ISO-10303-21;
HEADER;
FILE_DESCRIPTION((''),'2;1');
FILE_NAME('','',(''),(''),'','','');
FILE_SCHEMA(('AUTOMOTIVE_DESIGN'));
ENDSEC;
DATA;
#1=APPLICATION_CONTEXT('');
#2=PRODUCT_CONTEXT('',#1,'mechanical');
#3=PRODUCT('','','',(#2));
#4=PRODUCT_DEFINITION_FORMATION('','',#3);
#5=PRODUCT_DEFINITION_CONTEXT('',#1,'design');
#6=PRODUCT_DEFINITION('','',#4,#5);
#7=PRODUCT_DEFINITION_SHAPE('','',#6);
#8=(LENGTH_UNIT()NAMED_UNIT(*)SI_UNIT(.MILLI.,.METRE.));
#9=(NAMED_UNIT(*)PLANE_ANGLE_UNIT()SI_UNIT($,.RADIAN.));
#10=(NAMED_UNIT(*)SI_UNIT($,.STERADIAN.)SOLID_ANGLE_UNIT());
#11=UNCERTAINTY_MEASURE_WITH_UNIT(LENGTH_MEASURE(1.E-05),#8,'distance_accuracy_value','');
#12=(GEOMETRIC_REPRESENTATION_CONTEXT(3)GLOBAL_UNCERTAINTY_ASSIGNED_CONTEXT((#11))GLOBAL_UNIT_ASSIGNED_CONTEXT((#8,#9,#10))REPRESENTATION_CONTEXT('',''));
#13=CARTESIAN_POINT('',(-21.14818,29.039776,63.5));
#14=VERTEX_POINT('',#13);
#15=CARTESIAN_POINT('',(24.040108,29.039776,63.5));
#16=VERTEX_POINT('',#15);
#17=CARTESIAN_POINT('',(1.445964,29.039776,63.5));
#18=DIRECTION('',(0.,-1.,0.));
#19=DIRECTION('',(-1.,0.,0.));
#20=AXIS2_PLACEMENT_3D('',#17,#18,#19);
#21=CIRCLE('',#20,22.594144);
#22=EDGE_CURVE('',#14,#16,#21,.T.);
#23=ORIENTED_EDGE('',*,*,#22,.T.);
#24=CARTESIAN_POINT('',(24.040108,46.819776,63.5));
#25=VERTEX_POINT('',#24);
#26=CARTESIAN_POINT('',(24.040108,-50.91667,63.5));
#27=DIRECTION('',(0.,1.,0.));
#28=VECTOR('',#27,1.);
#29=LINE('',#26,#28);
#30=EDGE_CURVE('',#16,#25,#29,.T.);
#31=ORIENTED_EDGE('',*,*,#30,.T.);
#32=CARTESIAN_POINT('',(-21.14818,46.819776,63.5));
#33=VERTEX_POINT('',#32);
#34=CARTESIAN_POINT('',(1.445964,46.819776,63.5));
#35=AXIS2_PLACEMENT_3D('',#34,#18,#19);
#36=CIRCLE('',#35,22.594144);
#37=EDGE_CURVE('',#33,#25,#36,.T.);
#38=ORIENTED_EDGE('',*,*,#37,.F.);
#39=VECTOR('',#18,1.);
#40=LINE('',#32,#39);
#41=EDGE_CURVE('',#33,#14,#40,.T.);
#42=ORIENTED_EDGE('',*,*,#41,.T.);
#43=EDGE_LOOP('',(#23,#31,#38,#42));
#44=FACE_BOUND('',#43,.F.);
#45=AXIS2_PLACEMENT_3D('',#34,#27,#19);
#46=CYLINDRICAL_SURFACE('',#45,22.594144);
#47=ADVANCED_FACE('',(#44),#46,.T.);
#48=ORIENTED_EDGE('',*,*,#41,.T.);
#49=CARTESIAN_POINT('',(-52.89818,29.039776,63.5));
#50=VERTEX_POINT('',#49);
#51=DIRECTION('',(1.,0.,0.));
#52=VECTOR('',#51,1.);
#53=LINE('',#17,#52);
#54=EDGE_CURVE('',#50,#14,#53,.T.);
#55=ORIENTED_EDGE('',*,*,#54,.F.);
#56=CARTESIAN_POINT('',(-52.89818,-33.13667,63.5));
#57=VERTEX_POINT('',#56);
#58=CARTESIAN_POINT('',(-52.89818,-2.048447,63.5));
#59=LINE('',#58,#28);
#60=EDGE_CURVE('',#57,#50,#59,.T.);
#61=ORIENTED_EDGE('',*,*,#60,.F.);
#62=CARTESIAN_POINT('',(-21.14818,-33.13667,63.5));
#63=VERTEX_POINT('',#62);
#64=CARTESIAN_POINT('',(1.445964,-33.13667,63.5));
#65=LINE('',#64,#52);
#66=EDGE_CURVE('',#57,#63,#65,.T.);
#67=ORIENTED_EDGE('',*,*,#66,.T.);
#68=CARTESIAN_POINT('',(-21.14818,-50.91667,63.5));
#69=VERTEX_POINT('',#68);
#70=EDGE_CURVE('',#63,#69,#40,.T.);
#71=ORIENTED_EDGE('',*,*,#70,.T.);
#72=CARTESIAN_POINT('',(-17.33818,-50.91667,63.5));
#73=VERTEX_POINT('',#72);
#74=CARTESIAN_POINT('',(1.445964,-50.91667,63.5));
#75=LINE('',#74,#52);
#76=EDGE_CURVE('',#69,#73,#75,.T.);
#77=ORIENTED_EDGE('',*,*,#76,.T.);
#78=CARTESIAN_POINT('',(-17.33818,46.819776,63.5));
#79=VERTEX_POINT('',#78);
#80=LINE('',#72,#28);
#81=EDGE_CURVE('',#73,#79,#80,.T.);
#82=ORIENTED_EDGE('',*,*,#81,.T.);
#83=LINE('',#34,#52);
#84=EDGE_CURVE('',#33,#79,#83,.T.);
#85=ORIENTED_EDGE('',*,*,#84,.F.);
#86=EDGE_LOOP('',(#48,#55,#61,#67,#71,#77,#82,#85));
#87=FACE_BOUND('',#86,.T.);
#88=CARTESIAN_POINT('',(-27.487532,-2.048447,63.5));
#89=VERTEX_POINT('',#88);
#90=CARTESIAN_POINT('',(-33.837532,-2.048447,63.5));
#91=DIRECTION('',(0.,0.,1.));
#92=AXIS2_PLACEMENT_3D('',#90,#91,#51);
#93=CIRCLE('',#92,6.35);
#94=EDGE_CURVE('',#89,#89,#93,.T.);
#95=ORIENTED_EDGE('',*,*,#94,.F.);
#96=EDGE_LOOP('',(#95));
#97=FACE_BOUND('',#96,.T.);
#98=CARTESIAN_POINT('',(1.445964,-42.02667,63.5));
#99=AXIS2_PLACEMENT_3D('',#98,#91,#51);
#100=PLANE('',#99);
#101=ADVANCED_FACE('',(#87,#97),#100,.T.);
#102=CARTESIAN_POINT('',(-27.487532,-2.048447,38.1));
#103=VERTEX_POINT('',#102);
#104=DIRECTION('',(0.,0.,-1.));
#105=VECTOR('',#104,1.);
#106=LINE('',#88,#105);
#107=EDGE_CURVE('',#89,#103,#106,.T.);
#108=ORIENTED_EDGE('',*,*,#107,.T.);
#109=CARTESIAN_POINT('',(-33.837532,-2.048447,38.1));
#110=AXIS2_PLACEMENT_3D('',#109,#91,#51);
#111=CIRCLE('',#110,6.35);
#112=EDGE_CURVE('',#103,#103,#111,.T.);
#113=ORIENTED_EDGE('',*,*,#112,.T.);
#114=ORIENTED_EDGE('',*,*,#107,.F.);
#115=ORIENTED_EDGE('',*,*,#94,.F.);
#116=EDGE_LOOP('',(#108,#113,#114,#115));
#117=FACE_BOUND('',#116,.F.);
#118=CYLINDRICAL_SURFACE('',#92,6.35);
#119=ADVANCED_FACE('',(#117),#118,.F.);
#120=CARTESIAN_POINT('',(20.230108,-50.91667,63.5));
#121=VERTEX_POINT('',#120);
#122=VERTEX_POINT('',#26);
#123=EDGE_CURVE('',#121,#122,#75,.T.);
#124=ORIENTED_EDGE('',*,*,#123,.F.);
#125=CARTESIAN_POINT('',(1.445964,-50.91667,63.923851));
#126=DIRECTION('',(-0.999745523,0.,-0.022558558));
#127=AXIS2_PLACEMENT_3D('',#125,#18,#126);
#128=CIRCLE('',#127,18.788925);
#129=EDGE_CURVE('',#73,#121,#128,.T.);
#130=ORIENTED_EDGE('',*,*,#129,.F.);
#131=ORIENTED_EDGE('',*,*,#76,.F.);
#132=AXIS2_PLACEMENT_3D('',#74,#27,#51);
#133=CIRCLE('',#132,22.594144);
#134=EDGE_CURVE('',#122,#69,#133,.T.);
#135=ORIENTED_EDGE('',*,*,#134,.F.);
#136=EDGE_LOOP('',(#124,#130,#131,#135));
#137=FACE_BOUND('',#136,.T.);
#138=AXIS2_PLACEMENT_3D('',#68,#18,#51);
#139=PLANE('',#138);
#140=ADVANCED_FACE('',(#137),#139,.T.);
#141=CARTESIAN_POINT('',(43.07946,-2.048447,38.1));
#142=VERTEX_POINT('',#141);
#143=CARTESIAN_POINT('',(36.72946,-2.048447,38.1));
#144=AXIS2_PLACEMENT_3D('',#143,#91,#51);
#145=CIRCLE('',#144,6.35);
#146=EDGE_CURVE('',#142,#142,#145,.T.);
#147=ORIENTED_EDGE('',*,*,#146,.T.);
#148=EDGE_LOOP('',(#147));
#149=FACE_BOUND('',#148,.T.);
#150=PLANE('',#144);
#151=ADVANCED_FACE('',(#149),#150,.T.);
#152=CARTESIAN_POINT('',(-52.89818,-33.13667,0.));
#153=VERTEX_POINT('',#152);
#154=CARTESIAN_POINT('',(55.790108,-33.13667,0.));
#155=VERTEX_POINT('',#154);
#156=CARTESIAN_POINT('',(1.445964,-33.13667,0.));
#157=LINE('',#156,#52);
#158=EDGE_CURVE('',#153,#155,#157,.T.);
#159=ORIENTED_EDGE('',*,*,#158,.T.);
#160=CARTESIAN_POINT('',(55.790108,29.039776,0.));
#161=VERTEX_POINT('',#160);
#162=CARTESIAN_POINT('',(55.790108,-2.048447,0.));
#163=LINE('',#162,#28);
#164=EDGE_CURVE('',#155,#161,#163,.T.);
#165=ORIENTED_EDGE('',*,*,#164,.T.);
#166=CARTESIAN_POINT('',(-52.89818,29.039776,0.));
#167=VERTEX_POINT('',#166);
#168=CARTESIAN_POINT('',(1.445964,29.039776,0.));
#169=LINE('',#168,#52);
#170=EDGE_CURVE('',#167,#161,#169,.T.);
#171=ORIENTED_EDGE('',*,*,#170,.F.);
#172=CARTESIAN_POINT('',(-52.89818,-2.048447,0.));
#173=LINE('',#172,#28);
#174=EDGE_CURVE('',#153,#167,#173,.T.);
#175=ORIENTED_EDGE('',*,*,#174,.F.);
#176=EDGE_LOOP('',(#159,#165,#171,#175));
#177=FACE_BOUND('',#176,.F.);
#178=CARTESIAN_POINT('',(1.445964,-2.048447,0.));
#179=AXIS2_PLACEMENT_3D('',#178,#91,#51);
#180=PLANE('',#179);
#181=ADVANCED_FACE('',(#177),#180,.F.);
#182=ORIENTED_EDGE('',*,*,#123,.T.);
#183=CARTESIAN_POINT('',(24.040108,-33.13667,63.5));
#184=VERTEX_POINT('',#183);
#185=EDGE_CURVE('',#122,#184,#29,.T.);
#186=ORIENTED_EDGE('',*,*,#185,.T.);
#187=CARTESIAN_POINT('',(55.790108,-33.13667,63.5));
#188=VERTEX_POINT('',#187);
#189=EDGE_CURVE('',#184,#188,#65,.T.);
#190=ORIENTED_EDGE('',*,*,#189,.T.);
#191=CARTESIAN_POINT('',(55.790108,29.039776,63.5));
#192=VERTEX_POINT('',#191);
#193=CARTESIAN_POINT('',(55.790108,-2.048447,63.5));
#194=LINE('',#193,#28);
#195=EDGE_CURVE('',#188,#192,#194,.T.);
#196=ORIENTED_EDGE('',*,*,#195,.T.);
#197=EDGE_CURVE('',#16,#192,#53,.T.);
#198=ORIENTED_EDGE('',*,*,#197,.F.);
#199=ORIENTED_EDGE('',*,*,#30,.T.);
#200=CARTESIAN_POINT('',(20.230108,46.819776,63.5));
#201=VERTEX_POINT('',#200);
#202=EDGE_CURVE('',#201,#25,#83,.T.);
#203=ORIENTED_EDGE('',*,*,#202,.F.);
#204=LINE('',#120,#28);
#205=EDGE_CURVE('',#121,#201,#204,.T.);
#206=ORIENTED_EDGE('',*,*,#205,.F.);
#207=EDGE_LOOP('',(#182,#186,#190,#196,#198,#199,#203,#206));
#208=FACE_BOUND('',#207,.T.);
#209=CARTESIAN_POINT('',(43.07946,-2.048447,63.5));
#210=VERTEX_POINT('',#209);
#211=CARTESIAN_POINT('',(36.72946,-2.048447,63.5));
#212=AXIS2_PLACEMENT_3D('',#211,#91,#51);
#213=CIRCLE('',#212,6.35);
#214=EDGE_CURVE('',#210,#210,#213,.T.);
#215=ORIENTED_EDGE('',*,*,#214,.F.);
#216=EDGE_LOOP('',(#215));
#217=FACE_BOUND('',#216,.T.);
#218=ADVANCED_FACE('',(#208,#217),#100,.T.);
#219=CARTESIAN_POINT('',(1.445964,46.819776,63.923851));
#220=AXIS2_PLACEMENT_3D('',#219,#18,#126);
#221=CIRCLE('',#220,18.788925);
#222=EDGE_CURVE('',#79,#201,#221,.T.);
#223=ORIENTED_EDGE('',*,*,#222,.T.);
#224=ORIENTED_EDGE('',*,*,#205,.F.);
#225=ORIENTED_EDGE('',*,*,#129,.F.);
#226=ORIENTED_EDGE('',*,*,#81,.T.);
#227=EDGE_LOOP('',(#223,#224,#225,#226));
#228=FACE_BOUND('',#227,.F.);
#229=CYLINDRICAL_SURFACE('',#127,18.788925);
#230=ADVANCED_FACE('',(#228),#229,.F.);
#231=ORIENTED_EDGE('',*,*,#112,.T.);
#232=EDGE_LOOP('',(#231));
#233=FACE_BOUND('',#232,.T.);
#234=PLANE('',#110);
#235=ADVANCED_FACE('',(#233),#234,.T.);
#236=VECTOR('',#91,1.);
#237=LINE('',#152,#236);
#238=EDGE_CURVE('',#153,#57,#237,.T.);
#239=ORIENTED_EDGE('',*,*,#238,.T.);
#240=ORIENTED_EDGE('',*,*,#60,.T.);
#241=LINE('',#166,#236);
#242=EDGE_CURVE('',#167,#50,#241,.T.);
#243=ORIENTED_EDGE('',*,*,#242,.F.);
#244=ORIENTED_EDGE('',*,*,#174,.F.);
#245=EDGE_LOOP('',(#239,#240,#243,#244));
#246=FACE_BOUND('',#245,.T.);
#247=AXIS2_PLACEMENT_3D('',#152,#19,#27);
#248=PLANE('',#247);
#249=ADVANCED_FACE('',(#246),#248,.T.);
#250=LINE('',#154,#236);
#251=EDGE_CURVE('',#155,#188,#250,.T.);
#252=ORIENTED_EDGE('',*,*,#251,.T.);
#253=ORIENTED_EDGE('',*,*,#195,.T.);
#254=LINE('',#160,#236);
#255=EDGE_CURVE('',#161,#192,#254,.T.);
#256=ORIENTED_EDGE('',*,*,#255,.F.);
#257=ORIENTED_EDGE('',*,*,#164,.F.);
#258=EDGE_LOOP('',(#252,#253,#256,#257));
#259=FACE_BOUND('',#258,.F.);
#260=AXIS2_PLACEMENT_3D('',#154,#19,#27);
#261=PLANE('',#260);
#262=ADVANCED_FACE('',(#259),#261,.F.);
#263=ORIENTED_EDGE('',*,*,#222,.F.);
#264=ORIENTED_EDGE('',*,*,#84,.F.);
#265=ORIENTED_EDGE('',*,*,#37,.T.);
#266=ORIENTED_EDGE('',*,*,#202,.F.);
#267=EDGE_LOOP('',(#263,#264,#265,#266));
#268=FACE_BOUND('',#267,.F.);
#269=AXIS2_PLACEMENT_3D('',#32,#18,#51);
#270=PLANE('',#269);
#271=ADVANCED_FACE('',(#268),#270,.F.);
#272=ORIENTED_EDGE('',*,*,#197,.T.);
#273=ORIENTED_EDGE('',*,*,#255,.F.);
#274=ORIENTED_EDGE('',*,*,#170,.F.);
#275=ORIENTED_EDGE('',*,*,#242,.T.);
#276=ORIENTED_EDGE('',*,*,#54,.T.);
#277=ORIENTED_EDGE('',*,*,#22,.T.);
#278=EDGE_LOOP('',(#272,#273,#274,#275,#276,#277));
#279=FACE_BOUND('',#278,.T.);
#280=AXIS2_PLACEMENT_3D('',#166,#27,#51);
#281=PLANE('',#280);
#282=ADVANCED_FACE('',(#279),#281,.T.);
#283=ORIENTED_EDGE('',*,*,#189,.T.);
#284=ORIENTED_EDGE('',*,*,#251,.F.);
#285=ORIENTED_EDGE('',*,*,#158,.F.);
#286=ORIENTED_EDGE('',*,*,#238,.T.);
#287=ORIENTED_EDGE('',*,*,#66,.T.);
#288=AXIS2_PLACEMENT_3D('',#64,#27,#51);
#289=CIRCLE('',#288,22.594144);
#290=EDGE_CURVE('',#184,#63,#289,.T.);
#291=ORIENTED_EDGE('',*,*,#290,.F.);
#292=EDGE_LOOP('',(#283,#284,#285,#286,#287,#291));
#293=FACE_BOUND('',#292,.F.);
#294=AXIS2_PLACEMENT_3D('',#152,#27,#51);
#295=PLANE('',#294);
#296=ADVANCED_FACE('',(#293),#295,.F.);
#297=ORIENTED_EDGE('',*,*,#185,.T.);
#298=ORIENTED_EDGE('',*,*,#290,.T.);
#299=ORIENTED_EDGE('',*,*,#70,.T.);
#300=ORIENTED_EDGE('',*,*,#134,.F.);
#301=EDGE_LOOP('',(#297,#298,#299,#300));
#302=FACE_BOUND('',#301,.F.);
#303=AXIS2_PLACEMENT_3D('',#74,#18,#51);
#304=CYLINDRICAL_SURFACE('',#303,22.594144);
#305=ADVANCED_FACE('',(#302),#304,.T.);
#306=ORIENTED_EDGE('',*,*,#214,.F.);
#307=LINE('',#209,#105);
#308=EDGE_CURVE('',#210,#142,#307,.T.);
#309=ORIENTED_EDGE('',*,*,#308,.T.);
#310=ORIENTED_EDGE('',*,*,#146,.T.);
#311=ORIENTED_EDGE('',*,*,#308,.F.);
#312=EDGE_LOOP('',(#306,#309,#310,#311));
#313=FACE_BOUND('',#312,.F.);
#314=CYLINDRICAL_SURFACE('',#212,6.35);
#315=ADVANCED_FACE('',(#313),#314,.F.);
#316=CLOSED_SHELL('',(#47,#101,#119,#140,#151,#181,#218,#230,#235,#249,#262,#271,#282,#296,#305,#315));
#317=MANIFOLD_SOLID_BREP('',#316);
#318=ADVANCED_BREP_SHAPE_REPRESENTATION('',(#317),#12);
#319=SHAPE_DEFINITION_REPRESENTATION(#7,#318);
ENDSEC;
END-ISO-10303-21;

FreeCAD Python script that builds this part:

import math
import FreeCAD as App
import Part
import Sketcher

V = App.Vector
Q = App.Units.Quantity


def add_polygon(sketch, points):
    """Adds a closed chain of lines whose ends are joined by coincident constraints."""
    first, n = sketch.GeometryCount, len(points)
    for a, b in zip(points, points[1:] + points[:1]):
        sketch.addGeometry(Part.LineSegment(App.Vector(*a, 0), App.Vector(*b, 0)), False)
    for i in range(n):
        sketch.addConstraint(Sketcher.Constraint("Coincident", first + i, 2, first + (i + 1) % n, 1))

doc = App.newDocument("Part")
body = doc.addObject("PartDesign::Body", "Body")

sketch1 = body.newObject("Sketcher::SketchObject", "Sketch")
sketch1.AttachmentSupport = (doc.getObject("XY_Plane"), [""])
sketch1.MapMode = "FlatFace"
add_polygon(sketch1, [(-53, 29), (-53, -33), (56, -33), (56, 29)])
sketch1.addConstraint(Sketcher.Constraint("Vertical", 0))
sketch1.addConstraint(Sketcher.Constraint("Horizontal", 1))
sketch1.addConstraint(Sketcher.Constraint("Vertical", 2))
sketch1.addConstraint(Sketcher.Constraint("Horizontal", 3))
sketch1.addConstraint(Sketcher.Constraint("DistanceX", 1, 1, 1, 2, Q("108.688287 mm")))
sketch1.addConstraint(Sketcher.Constraint("DistanceY", 0, 2, 0, 1, Q("62.176445 mm")))
sketch1.addConstraint(Sketcher.Constraint("DistanceX", 0, 2, -1, 1, Q("52.89818 mm")))
sketch1.addConstraint(Sketcher.Constraint("DistanceY", 0, 2, -1, 1, Q("33.13667 mm")))
pad1 = body.newObject("PartDesign::Pad", "Pad")
pad1.Profile = sketch1
pad1.Length = Q("2.5 in")

sketch2 = body.newObject("Sketcher::SketchObject", "Sketch001")
sketch2.AttachmentSupport = (doc.getObject("XY_Plane"), [""])
sketch2.MapMode = "FlatFace"
sketch2.AttachmentOffset = App.Placement(V(0, 0, 2.5 * 25.4), App.Rotation())
sketch2.addGeometry(Part.Circle(V(-34, -2, 0), V(0, 0, 1), 6), False)
sketch2.addGeometry(Part.Circle(V(37, -2, 0), V(0, 0, 1), 6), False)
sketch2.addConstraint(Sketcher.Constraint("Equal", 0, 1))
sketch2.addConstraint(Sketcher.Constraint("Horizontal", 0, 3, 1, 3))
sketch2.addConstraint(Sketcher.Constraint("Diameter", 0, Q("0.5 in")))
sketch2.addConstraint(Sketcher.Constraint("DistanceX", -1, 1, 1, 3, Q("36.72946 mm")))
sketch2.addConstraint(Sketcher.Constraint("DistanceX", 0, 3, -1, 1, Q("33.837532 mm")))
sketch2.addConstraint(Sketcher.Constraint("DistanceY", 0, 3, -1, 1, Q("2.048447 mm")))
pocket1 = body.newObject("PartDesign::Pocket", "Pocket")
pocket1.Profile = sketch2
pocket1.Length = Q("1 in")

sketch3 = body.newObject("Sketcher::SketchObject", "Sketch002")
sketch3.AttachmentSupport = (doc.getObject("XY_Plane"), [""])
sketch3.MapMode = "FlatFace"
sketch3.AttachmentOffset = App.Placement(V(0, 0, 2.5 * 25.4), App.Rotation())
add_polygon(sketch3, [(-21, -51), (24, -51), (24, 47), (-21, 47)])
sketch3.addConstraint(Sketcher.Constraint("Horizontal", 0))
sketch3.addConstraint(Sketcher.Constraint("Vertical", 1))
sketch3.addConstraint(Sketcher.Constraint("Horizontal", 2))
sketch3.addConstraint(Sketcher.Constraint("Vertical", 3))
sketch3.addConstraint(Sketcher.Constraint("DistanceX", 0, 1, 0, 2, Q("45.188287 mm")))
sketch3.addConstraint(Sketcher.Constraint("DistanceY", 1, 1, 1, 2, Q("97.736445 mm")))
sketch3.addConstraint(Sketcher.Constraint("DistanceY", 0, 2, -1, 1, Q("50.91667 mm")))
sketch3.addConstraint(Sketcher.Constraint("DistanceX", 2, 2, -1, 1, Q("21.14818 mm")))
pad2 = body.newObject("PartDesign::Pad", "Pad001")
pad2.Profile = sketch3
pad2.Length = Q("1 in")
pad2.Reversed = True

sketch4 = body.newObject("Sketcher::SketchObject", "Sketch003")
sketch4.AttachmentSupport = (doc.getObject("XZ_Plane"), [""])
sketch4.MapMode = "FlatFace"
sketch4.AttachmentOffset = App.Placement(V(0, 0, 50.91667), App.Rotation())
sketch4.addGeometry(Part.ArcOfCircle(Part.Circle(V(1, 64, 0), V(0, 0, 1), 23), math.radians(180), math.radians(360)), False)
sketch4.addGeometry(Part.LineSegment(V(-21, 64, 0), V(-21, 38, 0)), False)
sketch4.addGeometry(Part.LineSegment(V(-21, 38, 0), V(24, 38, 0)), False)
sketch4.addGeometry(Part.LineSegment(V(24, 38, 0), V(24, 64, 0)), False)
sketch4.addConstraint(Sketcher.Constraint("Tangent", 0, 1, 1, 1))
sketch4.addConstraint(Sketcher.Constraint("Coincident", 1, 2, 2, 1))
sketch4.addConstraint(Sketcher.Constraint("Coincident", 2, 2, 3, 1))
sketch4.addConstraint(Sketcher.Constraint("Tangent", 3, 2, 0, 2))
sketch4.addConstraint(Sketcher.Constraint("Vertical", 1))
sketch4.addConstraint(Sketcher.Constraint("Horizontal", 2))
sketch4.addConstraint(Sketcher.Constraint("Vertical", 3))
sketch4.addConstraint(Sketcher.Constraint("DistanceY", 1, 2, 1, 1, Q("1 in")))
sketch4.addConstraint(Sketcher.Constraint("DistanceY", -1, 1, 0, 3, Q("2.5 in")))
sketch4.addConstraint(Sketcher.Constraint("Radius", 0, Q("22.594144 mm")))
sketch4.addConstraint(Sketcher.Constraint("DistanceX", 0, 1, -1, 1, Q("21.14818 mm")))
pocket2 = body.newObject("PartDesign::Pocket", "Pocket001")
pocket2.Profile = sketch4
pocket2.Length = Q("0.7 in")

sketch5 = body.newObject("Sketcher::SketchObject", "Sketch004")
sketch5.AttachmentSupport = (doc.getObject("XZ_Plane"), [""])
sketch5.MapMode = "FlatFace"
sketch5.AttachmentOffset = App.Placement(V(0, 0, 50.91667), App.Rotation())
sketch5.addGeometry(Part.LineSegment(V(20, 64, 0), V(-17, 64, 0)), False)
sketch5.addGeometry(Part.ArcOfCircle(Part.Circle(V(1, 64, 0), V(0, 0, 1), 19), math.radians(-179), math.radians(-1)), False)
sketch5.addConstraint(Sketcher.Constraint("Coincident", 0, 1, 1, 2))
sketch5.addConstraint(Sketcher.Constraint("Coincident", 1, 1, 0, 2))
sketch5.addConstraint(Sketcher.Constraint("Horizontal", 0))
sketch5.addConstraint(Sketcher.Constraint("DistanceY", -1, 1, 0, 1, Q("2.5 in")))
sketch5.addConstraint(Sketcher.Constraint("Radius", 1, Q("18.788925 mm")))
sketch5.addConstraint(Sketcher.Constraint("DistanceX", 0, 2, 0, 1, Q("37.568287 mm")))
sketch5.addConstraint(Sketcher.Constraint("DistanceX", 1, 1, -1, 1, Q("17.33818 mm")))
pocket3 = body.newObject("PartDesign::Pocket", "Pocket002")
pocket3.Profile = sketch5
pocket3.Type = "ThroughAll"

sketch6 = body.newObject("Sketcher::SketchObject", "Sketch005")
sketch6.AttachmentSupport = (doc.getObject("XZ_Plane"), [""])
sketch6.MapMode = "FlatFace"
sketch6.AttachmentOffset = App.Placement(V(0, 0, -46.819776), App.Rotation())
sketch6.addGeometry(Part.ArcOfCircle(Part.Circle(V(1, 64, 0), V(0, 0, 1), 23), math.radians(180), math.radians(360)), False)
sketch6.addGeometry(Part.LineSegment(V(24, 64, 0), V(24, 38, 0)), False)
sketch6.addGeometry(Part.LineSegment(V(24, 38, 0), V(-21, 38, 0)), False)
sketch6.addGeometry(Part.LineSegment(V(-21, 38, 0), V(-21, 64, 0)), False)
sketch6.addConstraint(Sketcher.Constraint("Tangent", 0, 2, 1, 1))
sketch6.addConstraint(Sketcher.Constraint("Coincident", 1, 2, 2, 1))
sketch6.addConstraint(Sketcher.Constraint("Coincident", 2, 2, 3, 1))
sketch6.addConstraint(Sketcher.Constraint("Tangent", 3, 2, 0, 1))
sketch6.addConstraint(Sketcher.Constraint("Vertical", 1))
sketch6.addConstraint(Sketcher.Constraint("Horizontal", 2))
sketch6.addConstraint(Sketcher.Constraint("Vertical", 3))
sketch6.addConstraint(Sketcher.Constraint("DistanceY", 1, 2, 1, 1, Q("1 in")))
sketch6.addConstraint(Sketcher.Constraint("DistanceY", -1, 1, 0, 3, Q("2.5 in")))
sketch6.addConstraint(Sketcher.Constraint("Radius", 0, Q("22.594144 mm")))
sketch6.addConstraint(Sketcher.Constraint("DistanceX", 2, 2, -1, 1, Q("21.14818 mm")))
pad3 = body.newObject("PartDesign::Pad", "Pad002")
pad3.Profile = sketch6
pad3.Length = Q("0.7 in")

sketch7 = body.newObject("Sketcher::SketchObject", "Sketch006")
sketch7.AttachmentSupport = (doc.getObject("XZ_Plane"), [""])
sketch7.MapMode = "FlatFace"
sketch7.AttachmentOffset = App.Placement(V(0, 0, -46.819776), App.Rotation())
sketch7.addGeometry(Part.ArcOfCircle(Part.Circle(V(1, 64, 0), V(0, 0, 1), 23), math.radians(180), math.radians(360)), False)
sketch7.addGeometry(Part.LineSegment(V(24, 64, 0), V(24, 38, 0)), False)
sketch7.addGeometry(Part.LineSegment(V(24, 38, 0), V(-21, 38, 0)), False)
sketch7.addGeometry(Part.LineSegment(V(-21, 38, 0), V(-21, 64, 0)), False)
sketch7.addConstraint(Sketcher.Constraint("Tangent", 0, 2, 1, 1))
sketch7.addConstraint(Sketcher.Constraint("Coincident", 1, 2, 2, 1))
sketch7.addConstraint(Sketcher.Constraint("Coincident", 2, 2, 3, 1))
sketch7.addConstraint(Sketcher.Constraint("Tangent", 3, 2, 0, 1))
sketch7.addConstraint(Sketcher.Constraint("Vertical", 1))
sketch7.addConstraint(Sketcher.Constraint("Horizontal", 2))
sketch7.addConstraint(Sketcher.Constraint("Vertical", 3))
sketch7.addConstraint(Sketcher.Constraint("DistanceY", 1, 2, 1, 1, Q("1 in")))
sketch7.addConstraint(Sketcher.Constraint("DistanceY", -1, 1, 0, 3, Q("2.5 in")))
sketch7.addConstraint(Sketcher.Constraint("Radius", 0, Q("22.594144 mm")))
sketch7.addConstraint(Sketcher.Constraint("DistanceX", 2, 2, -1, 1, Q("21.14818 mm")))
pocket4 = body.newObject("PartDesign::Pocket", "Pocket003")
pocket4.Profile = sketch7
pocket4.Length = Q("0.7 in")
pocket4.Reversed = True

doc.recompute()
